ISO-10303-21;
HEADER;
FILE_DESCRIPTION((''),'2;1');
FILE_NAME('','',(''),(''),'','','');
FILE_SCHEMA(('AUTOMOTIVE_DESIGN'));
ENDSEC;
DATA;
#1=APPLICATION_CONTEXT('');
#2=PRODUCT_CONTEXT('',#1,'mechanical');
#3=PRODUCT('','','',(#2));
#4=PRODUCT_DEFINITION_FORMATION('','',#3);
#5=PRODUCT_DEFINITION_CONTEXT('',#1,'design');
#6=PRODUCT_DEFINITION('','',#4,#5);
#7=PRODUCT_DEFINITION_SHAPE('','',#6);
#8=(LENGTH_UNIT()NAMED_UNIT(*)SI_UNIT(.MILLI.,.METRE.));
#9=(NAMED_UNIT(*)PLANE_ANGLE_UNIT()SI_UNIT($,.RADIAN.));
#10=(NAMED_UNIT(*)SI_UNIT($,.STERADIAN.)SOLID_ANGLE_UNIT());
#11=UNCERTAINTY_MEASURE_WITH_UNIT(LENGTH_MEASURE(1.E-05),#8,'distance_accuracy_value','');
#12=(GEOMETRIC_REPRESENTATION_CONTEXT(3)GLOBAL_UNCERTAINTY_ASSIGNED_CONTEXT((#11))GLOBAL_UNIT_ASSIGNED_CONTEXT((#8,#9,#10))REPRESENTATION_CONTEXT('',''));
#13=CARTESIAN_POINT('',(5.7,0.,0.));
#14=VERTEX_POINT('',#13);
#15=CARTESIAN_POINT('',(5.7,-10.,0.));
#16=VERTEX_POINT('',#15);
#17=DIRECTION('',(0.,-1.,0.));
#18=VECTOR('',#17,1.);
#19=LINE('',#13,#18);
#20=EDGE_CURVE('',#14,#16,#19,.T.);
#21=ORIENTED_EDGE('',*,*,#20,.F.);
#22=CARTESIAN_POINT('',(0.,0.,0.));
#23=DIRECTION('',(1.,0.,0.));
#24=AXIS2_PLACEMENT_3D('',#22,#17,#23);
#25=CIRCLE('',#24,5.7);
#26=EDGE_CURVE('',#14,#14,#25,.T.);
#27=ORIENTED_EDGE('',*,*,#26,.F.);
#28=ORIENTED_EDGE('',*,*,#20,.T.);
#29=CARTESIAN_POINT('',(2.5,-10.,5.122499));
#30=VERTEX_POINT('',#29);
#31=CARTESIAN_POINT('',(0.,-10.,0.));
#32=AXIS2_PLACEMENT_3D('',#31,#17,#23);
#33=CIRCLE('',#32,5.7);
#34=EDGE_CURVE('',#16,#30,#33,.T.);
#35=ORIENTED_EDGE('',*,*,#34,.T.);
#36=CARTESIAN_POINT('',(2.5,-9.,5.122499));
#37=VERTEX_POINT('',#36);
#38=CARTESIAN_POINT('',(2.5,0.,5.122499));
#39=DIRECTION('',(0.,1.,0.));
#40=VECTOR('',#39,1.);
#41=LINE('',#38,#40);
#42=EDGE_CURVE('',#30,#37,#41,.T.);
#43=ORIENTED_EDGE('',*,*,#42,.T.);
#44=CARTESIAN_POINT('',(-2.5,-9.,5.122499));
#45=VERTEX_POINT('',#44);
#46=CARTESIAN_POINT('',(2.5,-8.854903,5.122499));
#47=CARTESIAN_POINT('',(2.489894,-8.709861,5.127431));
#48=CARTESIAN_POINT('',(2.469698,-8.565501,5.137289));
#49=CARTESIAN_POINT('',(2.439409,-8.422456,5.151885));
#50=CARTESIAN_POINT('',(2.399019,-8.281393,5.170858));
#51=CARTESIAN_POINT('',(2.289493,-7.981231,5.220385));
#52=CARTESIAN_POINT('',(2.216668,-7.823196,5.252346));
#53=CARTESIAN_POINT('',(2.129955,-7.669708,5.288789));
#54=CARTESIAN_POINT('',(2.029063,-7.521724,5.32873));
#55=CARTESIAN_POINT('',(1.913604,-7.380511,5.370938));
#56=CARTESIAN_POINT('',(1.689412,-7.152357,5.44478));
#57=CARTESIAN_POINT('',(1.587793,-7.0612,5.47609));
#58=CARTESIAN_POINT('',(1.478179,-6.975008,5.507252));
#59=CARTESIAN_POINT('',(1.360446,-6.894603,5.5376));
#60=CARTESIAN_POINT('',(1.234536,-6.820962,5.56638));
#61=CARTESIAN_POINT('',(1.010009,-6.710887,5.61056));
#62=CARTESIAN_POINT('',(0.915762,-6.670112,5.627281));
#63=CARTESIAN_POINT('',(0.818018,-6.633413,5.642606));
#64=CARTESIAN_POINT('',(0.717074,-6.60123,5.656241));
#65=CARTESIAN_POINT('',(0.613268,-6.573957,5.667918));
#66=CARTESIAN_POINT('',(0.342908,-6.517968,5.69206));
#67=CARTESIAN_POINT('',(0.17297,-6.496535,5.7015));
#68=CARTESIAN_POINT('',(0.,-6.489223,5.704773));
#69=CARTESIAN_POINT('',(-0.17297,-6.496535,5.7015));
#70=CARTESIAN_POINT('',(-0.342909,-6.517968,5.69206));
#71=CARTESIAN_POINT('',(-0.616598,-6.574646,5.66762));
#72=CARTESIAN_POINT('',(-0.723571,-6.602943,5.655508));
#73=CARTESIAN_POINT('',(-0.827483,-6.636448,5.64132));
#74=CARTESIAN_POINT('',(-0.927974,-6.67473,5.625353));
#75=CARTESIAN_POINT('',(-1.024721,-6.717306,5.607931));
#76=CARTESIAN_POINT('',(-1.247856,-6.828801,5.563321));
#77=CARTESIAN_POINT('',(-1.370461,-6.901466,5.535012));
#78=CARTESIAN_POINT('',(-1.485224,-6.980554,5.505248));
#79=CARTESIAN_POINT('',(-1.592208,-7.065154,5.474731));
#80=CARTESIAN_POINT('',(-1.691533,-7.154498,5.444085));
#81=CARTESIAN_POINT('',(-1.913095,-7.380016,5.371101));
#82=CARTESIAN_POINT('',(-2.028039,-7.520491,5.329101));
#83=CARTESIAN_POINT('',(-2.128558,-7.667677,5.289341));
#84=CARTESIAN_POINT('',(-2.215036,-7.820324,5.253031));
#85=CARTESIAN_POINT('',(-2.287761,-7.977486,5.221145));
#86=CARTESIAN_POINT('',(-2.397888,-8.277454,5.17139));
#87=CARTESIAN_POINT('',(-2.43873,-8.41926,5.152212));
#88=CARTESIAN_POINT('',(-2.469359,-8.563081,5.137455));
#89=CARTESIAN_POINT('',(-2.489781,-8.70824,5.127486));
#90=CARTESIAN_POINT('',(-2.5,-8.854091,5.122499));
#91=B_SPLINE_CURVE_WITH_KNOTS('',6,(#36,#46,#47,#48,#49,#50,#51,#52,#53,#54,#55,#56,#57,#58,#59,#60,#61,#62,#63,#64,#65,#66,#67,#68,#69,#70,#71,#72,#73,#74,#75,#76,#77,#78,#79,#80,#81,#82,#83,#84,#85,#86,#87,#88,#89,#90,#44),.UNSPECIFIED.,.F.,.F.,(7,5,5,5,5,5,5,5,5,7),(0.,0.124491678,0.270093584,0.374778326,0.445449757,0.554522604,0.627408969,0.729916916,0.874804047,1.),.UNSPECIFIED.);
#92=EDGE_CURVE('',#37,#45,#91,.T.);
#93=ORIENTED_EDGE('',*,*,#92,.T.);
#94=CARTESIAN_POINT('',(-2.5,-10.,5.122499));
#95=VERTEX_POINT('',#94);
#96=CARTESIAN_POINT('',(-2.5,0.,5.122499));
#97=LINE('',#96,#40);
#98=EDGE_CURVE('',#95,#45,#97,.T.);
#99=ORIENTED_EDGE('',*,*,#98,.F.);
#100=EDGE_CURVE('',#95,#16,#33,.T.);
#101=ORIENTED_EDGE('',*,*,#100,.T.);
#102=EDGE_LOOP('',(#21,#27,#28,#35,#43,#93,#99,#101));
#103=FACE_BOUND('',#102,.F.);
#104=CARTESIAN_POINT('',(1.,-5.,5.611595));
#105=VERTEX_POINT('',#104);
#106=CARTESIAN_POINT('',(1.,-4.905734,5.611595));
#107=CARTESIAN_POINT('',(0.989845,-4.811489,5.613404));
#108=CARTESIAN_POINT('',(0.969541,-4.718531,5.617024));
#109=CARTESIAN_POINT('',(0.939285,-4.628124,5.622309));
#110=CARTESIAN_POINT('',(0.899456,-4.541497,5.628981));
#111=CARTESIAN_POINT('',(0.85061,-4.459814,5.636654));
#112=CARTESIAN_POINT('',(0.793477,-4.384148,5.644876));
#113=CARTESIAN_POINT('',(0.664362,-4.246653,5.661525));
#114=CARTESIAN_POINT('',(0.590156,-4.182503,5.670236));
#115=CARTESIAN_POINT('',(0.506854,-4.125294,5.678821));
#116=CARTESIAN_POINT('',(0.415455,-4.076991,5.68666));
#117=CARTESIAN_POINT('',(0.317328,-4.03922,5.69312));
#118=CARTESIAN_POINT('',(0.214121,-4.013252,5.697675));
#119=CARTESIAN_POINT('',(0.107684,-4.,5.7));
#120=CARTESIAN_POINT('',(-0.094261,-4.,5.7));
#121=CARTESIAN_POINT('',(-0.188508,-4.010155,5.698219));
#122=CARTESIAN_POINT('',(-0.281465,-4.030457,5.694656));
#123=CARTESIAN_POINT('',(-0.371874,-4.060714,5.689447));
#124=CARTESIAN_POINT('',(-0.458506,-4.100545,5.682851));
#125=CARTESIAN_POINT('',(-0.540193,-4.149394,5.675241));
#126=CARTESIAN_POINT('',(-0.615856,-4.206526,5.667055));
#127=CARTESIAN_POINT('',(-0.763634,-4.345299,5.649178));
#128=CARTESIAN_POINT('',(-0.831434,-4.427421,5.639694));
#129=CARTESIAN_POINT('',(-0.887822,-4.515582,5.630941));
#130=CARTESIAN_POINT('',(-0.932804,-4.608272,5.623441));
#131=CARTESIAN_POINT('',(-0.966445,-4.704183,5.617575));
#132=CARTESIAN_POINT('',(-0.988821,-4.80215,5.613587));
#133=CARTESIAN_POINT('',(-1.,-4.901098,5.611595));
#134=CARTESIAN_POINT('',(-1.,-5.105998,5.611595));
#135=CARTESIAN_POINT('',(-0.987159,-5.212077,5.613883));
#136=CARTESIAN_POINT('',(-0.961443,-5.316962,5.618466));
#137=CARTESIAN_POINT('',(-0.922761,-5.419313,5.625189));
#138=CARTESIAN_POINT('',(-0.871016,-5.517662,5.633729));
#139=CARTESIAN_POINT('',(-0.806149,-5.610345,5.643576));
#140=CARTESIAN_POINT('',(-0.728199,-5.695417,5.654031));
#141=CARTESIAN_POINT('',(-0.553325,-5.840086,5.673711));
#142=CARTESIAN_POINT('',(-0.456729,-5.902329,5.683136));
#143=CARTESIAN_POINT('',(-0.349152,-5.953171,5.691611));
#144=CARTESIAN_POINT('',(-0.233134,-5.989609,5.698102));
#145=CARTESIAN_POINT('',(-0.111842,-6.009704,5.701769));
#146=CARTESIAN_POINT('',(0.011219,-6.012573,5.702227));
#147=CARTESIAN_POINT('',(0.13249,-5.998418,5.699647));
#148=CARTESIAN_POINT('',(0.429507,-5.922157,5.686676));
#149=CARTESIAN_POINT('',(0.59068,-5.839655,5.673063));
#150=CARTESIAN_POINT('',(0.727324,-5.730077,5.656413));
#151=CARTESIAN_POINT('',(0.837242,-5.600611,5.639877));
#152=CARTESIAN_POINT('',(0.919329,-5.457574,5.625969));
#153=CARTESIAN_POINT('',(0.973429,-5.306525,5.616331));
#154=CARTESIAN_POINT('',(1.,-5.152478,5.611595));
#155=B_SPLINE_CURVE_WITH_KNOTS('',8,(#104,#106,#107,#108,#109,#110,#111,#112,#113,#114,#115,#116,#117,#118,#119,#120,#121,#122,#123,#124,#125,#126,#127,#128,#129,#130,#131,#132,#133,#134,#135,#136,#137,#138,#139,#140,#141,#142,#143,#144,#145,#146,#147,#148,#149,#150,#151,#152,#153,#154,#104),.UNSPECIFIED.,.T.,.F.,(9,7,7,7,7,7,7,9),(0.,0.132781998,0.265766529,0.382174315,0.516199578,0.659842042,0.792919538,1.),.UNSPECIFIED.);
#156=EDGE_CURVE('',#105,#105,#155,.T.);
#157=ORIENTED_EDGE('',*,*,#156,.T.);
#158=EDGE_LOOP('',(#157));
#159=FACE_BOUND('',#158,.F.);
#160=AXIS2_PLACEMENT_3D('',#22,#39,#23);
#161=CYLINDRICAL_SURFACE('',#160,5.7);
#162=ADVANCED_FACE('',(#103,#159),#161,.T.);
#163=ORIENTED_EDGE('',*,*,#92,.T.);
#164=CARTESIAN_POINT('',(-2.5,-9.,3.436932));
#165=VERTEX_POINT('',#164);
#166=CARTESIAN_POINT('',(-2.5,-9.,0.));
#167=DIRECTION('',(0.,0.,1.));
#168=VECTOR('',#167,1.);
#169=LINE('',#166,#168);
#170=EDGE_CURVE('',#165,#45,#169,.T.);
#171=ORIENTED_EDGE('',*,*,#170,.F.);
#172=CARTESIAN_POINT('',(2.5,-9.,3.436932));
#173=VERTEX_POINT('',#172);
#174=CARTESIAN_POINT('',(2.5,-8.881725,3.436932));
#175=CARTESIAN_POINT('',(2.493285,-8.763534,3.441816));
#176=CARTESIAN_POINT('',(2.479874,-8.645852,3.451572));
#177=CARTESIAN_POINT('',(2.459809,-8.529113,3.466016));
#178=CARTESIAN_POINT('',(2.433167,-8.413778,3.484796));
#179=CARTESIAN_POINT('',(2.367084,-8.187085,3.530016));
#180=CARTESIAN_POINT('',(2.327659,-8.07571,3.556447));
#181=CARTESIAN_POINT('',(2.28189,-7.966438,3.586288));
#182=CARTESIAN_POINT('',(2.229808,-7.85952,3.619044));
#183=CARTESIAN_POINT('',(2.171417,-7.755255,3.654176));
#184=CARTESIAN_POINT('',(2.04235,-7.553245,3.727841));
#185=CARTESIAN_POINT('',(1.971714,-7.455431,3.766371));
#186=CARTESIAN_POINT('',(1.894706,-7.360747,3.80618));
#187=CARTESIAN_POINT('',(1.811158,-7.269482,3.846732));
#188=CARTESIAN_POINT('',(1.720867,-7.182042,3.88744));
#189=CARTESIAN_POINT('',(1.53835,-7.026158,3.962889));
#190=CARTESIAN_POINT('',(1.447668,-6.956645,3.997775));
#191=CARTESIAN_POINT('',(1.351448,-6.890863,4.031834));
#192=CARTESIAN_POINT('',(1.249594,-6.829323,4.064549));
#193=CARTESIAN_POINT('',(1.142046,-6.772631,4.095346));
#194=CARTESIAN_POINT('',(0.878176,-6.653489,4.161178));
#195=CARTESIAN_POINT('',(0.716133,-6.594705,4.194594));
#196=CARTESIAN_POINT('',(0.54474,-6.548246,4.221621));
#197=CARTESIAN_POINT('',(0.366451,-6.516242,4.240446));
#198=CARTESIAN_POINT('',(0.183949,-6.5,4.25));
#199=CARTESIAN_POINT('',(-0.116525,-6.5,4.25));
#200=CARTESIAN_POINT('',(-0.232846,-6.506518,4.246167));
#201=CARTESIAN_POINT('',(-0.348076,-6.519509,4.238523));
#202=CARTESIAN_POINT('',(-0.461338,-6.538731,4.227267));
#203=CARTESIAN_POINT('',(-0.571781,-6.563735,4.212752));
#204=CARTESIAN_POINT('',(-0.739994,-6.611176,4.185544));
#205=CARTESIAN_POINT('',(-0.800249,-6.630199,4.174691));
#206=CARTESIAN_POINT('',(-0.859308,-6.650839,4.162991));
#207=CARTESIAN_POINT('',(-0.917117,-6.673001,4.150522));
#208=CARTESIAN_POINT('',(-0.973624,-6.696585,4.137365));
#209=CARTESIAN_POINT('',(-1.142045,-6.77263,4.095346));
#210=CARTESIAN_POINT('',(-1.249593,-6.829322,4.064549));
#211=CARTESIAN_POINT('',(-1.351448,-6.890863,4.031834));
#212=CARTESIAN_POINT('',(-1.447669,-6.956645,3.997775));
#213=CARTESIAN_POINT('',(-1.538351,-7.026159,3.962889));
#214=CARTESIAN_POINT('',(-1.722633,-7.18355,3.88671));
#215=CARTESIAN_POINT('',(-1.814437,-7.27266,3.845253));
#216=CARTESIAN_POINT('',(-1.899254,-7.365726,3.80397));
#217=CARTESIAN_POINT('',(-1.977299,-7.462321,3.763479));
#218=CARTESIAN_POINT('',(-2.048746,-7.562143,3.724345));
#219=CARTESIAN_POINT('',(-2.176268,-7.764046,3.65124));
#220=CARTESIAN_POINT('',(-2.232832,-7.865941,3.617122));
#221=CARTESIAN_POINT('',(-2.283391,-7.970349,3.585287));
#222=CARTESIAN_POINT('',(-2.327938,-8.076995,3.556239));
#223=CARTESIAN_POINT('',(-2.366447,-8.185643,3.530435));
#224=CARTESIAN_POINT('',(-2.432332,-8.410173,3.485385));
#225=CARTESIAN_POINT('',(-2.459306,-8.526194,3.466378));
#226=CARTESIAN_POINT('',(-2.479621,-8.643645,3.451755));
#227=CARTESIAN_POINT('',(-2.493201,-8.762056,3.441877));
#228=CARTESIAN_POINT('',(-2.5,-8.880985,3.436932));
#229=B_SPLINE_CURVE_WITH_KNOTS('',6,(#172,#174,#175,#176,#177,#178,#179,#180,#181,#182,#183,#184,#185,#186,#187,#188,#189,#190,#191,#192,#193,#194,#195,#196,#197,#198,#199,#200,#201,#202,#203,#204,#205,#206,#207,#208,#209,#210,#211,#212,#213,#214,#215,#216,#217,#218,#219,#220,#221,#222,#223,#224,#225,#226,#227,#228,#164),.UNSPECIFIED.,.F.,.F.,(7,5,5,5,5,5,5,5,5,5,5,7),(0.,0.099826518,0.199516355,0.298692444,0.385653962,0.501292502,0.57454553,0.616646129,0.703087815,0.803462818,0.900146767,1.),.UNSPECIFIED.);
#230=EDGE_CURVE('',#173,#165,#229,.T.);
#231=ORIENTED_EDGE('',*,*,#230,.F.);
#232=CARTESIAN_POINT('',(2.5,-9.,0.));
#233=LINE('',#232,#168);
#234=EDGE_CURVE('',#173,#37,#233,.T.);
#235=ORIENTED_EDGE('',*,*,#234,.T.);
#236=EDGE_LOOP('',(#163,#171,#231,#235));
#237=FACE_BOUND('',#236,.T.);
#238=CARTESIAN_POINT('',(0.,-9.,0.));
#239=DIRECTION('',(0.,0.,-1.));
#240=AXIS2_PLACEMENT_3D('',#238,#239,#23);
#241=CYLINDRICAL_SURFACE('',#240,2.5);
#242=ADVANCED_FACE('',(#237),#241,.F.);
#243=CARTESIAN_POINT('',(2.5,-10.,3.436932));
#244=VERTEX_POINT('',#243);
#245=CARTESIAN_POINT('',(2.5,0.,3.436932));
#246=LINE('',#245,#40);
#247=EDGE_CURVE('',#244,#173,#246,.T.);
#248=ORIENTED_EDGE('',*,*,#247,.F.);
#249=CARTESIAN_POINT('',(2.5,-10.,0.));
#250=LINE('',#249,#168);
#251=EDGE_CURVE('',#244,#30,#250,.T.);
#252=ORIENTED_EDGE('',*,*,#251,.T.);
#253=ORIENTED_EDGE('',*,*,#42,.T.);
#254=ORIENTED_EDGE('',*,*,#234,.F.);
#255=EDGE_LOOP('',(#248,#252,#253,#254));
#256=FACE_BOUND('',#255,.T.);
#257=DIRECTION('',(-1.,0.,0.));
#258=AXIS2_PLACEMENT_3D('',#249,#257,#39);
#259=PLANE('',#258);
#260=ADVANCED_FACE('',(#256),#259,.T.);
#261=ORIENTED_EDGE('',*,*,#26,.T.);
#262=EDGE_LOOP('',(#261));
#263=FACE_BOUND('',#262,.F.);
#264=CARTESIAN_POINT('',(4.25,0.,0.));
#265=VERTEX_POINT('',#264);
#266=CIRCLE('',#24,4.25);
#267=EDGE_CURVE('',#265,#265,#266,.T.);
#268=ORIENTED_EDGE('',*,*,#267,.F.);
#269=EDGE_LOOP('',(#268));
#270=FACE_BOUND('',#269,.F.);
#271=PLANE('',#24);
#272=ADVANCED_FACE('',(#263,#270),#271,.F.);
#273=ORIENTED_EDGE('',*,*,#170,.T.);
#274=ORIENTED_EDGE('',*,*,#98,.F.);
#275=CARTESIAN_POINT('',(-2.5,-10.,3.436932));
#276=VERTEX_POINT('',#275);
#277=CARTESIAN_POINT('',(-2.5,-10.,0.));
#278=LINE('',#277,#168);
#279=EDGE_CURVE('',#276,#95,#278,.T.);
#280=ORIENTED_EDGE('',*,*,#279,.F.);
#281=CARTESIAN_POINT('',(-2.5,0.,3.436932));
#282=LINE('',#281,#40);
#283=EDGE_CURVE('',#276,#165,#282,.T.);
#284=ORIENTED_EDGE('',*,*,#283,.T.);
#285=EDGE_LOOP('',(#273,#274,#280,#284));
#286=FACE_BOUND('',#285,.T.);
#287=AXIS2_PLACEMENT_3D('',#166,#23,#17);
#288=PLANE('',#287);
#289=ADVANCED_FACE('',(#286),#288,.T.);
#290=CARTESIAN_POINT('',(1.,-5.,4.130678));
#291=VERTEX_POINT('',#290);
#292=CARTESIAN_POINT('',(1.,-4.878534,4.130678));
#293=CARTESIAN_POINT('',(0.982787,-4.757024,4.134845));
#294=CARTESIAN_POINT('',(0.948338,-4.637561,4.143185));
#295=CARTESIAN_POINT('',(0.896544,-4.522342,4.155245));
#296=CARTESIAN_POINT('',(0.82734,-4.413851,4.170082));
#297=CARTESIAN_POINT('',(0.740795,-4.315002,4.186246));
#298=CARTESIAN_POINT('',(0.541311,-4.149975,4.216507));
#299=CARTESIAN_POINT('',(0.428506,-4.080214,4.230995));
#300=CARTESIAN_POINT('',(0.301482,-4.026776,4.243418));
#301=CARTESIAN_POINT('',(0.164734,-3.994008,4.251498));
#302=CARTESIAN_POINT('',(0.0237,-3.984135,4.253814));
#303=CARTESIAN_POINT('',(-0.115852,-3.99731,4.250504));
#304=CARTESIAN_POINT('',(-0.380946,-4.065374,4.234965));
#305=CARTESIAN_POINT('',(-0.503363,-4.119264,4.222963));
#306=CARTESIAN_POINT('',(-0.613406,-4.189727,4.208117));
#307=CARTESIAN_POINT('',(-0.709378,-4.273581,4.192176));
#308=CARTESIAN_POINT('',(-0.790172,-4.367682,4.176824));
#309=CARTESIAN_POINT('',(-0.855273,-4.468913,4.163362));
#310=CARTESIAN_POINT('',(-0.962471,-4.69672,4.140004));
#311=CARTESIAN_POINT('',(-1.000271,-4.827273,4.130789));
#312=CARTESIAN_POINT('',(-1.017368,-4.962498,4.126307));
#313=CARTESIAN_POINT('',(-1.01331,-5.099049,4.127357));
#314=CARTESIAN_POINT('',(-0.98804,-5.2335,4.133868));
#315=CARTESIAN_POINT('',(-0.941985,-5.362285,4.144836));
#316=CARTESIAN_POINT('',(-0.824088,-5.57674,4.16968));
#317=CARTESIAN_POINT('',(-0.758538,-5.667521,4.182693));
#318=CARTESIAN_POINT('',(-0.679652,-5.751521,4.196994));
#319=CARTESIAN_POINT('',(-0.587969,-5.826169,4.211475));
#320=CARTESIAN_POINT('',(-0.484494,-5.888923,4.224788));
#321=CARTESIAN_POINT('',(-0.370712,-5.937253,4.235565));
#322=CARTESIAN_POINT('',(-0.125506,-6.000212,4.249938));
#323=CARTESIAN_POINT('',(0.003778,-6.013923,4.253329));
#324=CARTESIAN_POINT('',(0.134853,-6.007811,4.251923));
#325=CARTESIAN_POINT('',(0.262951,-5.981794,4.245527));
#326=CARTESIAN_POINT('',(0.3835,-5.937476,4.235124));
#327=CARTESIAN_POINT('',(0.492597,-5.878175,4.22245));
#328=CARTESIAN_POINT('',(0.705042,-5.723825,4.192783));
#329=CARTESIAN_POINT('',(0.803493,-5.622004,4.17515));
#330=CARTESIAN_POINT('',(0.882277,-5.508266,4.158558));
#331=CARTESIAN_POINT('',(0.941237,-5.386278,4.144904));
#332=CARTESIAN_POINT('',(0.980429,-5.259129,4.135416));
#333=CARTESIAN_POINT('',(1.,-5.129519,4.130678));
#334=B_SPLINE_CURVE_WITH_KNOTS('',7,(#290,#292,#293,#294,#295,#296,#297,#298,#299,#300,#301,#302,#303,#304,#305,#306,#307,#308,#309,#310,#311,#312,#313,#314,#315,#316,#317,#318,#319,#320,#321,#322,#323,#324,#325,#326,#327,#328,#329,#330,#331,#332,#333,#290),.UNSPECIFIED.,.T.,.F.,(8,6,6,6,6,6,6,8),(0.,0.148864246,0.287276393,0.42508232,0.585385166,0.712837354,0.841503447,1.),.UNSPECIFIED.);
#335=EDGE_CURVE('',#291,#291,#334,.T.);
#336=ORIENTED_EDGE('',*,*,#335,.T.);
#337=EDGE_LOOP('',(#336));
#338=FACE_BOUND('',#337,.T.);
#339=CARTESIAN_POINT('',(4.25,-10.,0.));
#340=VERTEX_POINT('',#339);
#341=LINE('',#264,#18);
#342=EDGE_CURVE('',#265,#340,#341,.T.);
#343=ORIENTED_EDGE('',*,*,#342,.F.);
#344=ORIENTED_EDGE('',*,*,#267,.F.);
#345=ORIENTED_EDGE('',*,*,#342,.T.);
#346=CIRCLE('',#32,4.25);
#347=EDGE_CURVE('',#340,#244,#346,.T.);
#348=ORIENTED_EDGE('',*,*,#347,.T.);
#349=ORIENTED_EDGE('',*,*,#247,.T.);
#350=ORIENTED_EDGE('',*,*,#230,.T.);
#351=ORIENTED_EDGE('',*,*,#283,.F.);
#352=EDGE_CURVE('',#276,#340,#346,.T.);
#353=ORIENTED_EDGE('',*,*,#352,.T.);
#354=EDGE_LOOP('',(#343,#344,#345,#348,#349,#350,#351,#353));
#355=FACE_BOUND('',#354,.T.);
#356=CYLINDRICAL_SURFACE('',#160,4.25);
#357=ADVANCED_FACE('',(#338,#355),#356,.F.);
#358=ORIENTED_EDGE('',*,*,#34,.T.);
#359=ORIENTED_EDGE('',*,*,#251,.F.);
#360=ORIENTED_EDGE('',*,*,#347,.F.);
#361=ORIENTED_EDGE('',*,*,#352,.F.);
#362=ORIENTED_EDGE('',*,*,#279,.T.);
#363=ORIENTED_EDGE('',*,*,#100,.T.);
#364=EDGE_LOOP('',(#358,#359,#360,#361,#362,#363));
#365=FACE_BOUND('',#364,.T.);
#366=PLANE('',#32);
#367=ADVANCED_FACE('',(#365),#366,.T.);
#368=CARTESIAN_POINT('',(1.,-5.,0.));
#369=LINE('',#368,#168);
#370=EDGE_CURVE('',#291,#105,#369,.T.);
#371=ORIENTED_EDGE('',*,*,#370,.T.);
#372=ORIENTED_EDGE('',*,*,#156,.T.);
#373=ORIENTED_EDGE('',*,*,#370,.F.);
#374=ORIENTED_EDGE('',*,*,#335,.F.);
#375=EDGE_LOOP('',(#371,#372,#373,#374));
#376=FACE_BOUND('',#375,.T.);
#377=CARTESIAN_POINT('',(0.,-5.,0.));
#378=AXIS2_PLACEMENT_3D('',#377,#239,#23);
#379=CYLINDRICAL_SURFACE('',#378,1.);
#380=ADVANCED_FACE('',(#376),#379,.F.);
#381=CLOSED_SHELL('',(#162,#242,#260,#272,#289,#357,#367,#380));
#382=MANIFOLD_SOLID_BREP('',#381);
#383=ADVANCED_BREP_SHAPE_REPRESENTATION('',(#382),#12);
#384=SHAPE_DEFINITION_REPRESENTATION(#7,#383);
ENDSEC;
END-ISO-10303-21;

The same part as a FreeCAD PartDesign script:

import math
import FreeCAD as App
import Part
import Sketcher

V = App.Vector

doc = App.newDocument("Part")
body = doc.addObject("PartDesign::Body", "Body")

# Sketch on XZ plane
sketch1 = body.newObject("Sketcher::SketchObject", "Sketch")
sketch1.AttachmentSupport = (doc.getObject("XZ_Plane"), [""])
sketch1.MapMode = "FlatFace"
sketch1.addGeometry([
    Part.Circle(V(0, 0, 0), V(0, 0, 1), 5.7),
    Part.Circle(V(0, 0, 0), V(0, 0, 1), 4.2),
], False)
sketch1.addConstraint([
    Sketcher.Constraint("Coincident", 0, 3, -1, 1),
    Sketcher.Constraint("Coincident", 1, 3, -1, 1),
    Sketcher.Constraint("Diameter", 0, 11.4),
    Sketcher.Constraint("Diameter", 1, 8.5),
])
pad1 = body.newObject("PartDesign::Pad", "Pad")
pad1.Profile = sketch1
pad1.Length = 10

# Sketch on XY plane
sketch2 = body.newObject("Sketcher::SketchObject", "Sketch001")
sketch2.AttachmentSupport = (doc.getObject("XY_Plane"), [""])
sketch2.MapMode = "FlatFace"
sketch2.addGeometry([
    Part.Circle(V(0, -5, 0), V(0, 0, 1), 1),  # 0
    Part.LineSegment(V(2.5, -10, 0), V(2.5, -9, 0)),  # 1
    Part.ArcOfCircle(Part.Circle(V(0, -9, 0), V(0, 0, 1), 2.5), math.radians(0), math.radians(180)),  # 2
    Part.LineSegment(V(-2.5, -9, 0), V(-2.5, -10, 0)),  # 3
    Part.LineSegment(V(-2.5, -10, 0), V(2.5, -10, 0)),  # 4
], False)
sketch2.addConstraint([
    Sketcher.Constraint("Tangent", 1, 2, 2, 1),
    Sketcher.Constraint("Tangent", 2, 2, 3, 1),
    Sketcher.Constraint("Coincident", 3, 2, 4, 1),
    Sketcher.Constraint("Coincident", 4, 2, 1, 1),
    Sketcher.Constraint("Vertical", 1),
    Sketcher.Constraint("Vertical", 3),
    Sketcher.Constraint("Horizontal", 4),
    Sketcher.Constraint("PointOnObject", 0, 3, -2),
    Sketcher.Constraint("PointOnObject", 2, 3, -2),
    Sketcher.Constraint("Diameter", 0, 2.0),
    Sketcher.Constraint("Radius", 2, 2.5),
    Sketcher.Constraint("DistanceY", 1, 1, 1, 2, 1.0),
    Sketcher.Constraint("DistanceY", 0, 3, -1, 1, 5.0),
    Sketcher.Constraint("DistanceY", 2, 3, -1, 1, 9.0),
])
pocket1 = body.newObject("PartDesign::Pocket", "Pocket")
pocket1.Profile = sketch2
pocket1.Type = "ThroughAll"
pocket1.Reversed = True

doc.recompute()
